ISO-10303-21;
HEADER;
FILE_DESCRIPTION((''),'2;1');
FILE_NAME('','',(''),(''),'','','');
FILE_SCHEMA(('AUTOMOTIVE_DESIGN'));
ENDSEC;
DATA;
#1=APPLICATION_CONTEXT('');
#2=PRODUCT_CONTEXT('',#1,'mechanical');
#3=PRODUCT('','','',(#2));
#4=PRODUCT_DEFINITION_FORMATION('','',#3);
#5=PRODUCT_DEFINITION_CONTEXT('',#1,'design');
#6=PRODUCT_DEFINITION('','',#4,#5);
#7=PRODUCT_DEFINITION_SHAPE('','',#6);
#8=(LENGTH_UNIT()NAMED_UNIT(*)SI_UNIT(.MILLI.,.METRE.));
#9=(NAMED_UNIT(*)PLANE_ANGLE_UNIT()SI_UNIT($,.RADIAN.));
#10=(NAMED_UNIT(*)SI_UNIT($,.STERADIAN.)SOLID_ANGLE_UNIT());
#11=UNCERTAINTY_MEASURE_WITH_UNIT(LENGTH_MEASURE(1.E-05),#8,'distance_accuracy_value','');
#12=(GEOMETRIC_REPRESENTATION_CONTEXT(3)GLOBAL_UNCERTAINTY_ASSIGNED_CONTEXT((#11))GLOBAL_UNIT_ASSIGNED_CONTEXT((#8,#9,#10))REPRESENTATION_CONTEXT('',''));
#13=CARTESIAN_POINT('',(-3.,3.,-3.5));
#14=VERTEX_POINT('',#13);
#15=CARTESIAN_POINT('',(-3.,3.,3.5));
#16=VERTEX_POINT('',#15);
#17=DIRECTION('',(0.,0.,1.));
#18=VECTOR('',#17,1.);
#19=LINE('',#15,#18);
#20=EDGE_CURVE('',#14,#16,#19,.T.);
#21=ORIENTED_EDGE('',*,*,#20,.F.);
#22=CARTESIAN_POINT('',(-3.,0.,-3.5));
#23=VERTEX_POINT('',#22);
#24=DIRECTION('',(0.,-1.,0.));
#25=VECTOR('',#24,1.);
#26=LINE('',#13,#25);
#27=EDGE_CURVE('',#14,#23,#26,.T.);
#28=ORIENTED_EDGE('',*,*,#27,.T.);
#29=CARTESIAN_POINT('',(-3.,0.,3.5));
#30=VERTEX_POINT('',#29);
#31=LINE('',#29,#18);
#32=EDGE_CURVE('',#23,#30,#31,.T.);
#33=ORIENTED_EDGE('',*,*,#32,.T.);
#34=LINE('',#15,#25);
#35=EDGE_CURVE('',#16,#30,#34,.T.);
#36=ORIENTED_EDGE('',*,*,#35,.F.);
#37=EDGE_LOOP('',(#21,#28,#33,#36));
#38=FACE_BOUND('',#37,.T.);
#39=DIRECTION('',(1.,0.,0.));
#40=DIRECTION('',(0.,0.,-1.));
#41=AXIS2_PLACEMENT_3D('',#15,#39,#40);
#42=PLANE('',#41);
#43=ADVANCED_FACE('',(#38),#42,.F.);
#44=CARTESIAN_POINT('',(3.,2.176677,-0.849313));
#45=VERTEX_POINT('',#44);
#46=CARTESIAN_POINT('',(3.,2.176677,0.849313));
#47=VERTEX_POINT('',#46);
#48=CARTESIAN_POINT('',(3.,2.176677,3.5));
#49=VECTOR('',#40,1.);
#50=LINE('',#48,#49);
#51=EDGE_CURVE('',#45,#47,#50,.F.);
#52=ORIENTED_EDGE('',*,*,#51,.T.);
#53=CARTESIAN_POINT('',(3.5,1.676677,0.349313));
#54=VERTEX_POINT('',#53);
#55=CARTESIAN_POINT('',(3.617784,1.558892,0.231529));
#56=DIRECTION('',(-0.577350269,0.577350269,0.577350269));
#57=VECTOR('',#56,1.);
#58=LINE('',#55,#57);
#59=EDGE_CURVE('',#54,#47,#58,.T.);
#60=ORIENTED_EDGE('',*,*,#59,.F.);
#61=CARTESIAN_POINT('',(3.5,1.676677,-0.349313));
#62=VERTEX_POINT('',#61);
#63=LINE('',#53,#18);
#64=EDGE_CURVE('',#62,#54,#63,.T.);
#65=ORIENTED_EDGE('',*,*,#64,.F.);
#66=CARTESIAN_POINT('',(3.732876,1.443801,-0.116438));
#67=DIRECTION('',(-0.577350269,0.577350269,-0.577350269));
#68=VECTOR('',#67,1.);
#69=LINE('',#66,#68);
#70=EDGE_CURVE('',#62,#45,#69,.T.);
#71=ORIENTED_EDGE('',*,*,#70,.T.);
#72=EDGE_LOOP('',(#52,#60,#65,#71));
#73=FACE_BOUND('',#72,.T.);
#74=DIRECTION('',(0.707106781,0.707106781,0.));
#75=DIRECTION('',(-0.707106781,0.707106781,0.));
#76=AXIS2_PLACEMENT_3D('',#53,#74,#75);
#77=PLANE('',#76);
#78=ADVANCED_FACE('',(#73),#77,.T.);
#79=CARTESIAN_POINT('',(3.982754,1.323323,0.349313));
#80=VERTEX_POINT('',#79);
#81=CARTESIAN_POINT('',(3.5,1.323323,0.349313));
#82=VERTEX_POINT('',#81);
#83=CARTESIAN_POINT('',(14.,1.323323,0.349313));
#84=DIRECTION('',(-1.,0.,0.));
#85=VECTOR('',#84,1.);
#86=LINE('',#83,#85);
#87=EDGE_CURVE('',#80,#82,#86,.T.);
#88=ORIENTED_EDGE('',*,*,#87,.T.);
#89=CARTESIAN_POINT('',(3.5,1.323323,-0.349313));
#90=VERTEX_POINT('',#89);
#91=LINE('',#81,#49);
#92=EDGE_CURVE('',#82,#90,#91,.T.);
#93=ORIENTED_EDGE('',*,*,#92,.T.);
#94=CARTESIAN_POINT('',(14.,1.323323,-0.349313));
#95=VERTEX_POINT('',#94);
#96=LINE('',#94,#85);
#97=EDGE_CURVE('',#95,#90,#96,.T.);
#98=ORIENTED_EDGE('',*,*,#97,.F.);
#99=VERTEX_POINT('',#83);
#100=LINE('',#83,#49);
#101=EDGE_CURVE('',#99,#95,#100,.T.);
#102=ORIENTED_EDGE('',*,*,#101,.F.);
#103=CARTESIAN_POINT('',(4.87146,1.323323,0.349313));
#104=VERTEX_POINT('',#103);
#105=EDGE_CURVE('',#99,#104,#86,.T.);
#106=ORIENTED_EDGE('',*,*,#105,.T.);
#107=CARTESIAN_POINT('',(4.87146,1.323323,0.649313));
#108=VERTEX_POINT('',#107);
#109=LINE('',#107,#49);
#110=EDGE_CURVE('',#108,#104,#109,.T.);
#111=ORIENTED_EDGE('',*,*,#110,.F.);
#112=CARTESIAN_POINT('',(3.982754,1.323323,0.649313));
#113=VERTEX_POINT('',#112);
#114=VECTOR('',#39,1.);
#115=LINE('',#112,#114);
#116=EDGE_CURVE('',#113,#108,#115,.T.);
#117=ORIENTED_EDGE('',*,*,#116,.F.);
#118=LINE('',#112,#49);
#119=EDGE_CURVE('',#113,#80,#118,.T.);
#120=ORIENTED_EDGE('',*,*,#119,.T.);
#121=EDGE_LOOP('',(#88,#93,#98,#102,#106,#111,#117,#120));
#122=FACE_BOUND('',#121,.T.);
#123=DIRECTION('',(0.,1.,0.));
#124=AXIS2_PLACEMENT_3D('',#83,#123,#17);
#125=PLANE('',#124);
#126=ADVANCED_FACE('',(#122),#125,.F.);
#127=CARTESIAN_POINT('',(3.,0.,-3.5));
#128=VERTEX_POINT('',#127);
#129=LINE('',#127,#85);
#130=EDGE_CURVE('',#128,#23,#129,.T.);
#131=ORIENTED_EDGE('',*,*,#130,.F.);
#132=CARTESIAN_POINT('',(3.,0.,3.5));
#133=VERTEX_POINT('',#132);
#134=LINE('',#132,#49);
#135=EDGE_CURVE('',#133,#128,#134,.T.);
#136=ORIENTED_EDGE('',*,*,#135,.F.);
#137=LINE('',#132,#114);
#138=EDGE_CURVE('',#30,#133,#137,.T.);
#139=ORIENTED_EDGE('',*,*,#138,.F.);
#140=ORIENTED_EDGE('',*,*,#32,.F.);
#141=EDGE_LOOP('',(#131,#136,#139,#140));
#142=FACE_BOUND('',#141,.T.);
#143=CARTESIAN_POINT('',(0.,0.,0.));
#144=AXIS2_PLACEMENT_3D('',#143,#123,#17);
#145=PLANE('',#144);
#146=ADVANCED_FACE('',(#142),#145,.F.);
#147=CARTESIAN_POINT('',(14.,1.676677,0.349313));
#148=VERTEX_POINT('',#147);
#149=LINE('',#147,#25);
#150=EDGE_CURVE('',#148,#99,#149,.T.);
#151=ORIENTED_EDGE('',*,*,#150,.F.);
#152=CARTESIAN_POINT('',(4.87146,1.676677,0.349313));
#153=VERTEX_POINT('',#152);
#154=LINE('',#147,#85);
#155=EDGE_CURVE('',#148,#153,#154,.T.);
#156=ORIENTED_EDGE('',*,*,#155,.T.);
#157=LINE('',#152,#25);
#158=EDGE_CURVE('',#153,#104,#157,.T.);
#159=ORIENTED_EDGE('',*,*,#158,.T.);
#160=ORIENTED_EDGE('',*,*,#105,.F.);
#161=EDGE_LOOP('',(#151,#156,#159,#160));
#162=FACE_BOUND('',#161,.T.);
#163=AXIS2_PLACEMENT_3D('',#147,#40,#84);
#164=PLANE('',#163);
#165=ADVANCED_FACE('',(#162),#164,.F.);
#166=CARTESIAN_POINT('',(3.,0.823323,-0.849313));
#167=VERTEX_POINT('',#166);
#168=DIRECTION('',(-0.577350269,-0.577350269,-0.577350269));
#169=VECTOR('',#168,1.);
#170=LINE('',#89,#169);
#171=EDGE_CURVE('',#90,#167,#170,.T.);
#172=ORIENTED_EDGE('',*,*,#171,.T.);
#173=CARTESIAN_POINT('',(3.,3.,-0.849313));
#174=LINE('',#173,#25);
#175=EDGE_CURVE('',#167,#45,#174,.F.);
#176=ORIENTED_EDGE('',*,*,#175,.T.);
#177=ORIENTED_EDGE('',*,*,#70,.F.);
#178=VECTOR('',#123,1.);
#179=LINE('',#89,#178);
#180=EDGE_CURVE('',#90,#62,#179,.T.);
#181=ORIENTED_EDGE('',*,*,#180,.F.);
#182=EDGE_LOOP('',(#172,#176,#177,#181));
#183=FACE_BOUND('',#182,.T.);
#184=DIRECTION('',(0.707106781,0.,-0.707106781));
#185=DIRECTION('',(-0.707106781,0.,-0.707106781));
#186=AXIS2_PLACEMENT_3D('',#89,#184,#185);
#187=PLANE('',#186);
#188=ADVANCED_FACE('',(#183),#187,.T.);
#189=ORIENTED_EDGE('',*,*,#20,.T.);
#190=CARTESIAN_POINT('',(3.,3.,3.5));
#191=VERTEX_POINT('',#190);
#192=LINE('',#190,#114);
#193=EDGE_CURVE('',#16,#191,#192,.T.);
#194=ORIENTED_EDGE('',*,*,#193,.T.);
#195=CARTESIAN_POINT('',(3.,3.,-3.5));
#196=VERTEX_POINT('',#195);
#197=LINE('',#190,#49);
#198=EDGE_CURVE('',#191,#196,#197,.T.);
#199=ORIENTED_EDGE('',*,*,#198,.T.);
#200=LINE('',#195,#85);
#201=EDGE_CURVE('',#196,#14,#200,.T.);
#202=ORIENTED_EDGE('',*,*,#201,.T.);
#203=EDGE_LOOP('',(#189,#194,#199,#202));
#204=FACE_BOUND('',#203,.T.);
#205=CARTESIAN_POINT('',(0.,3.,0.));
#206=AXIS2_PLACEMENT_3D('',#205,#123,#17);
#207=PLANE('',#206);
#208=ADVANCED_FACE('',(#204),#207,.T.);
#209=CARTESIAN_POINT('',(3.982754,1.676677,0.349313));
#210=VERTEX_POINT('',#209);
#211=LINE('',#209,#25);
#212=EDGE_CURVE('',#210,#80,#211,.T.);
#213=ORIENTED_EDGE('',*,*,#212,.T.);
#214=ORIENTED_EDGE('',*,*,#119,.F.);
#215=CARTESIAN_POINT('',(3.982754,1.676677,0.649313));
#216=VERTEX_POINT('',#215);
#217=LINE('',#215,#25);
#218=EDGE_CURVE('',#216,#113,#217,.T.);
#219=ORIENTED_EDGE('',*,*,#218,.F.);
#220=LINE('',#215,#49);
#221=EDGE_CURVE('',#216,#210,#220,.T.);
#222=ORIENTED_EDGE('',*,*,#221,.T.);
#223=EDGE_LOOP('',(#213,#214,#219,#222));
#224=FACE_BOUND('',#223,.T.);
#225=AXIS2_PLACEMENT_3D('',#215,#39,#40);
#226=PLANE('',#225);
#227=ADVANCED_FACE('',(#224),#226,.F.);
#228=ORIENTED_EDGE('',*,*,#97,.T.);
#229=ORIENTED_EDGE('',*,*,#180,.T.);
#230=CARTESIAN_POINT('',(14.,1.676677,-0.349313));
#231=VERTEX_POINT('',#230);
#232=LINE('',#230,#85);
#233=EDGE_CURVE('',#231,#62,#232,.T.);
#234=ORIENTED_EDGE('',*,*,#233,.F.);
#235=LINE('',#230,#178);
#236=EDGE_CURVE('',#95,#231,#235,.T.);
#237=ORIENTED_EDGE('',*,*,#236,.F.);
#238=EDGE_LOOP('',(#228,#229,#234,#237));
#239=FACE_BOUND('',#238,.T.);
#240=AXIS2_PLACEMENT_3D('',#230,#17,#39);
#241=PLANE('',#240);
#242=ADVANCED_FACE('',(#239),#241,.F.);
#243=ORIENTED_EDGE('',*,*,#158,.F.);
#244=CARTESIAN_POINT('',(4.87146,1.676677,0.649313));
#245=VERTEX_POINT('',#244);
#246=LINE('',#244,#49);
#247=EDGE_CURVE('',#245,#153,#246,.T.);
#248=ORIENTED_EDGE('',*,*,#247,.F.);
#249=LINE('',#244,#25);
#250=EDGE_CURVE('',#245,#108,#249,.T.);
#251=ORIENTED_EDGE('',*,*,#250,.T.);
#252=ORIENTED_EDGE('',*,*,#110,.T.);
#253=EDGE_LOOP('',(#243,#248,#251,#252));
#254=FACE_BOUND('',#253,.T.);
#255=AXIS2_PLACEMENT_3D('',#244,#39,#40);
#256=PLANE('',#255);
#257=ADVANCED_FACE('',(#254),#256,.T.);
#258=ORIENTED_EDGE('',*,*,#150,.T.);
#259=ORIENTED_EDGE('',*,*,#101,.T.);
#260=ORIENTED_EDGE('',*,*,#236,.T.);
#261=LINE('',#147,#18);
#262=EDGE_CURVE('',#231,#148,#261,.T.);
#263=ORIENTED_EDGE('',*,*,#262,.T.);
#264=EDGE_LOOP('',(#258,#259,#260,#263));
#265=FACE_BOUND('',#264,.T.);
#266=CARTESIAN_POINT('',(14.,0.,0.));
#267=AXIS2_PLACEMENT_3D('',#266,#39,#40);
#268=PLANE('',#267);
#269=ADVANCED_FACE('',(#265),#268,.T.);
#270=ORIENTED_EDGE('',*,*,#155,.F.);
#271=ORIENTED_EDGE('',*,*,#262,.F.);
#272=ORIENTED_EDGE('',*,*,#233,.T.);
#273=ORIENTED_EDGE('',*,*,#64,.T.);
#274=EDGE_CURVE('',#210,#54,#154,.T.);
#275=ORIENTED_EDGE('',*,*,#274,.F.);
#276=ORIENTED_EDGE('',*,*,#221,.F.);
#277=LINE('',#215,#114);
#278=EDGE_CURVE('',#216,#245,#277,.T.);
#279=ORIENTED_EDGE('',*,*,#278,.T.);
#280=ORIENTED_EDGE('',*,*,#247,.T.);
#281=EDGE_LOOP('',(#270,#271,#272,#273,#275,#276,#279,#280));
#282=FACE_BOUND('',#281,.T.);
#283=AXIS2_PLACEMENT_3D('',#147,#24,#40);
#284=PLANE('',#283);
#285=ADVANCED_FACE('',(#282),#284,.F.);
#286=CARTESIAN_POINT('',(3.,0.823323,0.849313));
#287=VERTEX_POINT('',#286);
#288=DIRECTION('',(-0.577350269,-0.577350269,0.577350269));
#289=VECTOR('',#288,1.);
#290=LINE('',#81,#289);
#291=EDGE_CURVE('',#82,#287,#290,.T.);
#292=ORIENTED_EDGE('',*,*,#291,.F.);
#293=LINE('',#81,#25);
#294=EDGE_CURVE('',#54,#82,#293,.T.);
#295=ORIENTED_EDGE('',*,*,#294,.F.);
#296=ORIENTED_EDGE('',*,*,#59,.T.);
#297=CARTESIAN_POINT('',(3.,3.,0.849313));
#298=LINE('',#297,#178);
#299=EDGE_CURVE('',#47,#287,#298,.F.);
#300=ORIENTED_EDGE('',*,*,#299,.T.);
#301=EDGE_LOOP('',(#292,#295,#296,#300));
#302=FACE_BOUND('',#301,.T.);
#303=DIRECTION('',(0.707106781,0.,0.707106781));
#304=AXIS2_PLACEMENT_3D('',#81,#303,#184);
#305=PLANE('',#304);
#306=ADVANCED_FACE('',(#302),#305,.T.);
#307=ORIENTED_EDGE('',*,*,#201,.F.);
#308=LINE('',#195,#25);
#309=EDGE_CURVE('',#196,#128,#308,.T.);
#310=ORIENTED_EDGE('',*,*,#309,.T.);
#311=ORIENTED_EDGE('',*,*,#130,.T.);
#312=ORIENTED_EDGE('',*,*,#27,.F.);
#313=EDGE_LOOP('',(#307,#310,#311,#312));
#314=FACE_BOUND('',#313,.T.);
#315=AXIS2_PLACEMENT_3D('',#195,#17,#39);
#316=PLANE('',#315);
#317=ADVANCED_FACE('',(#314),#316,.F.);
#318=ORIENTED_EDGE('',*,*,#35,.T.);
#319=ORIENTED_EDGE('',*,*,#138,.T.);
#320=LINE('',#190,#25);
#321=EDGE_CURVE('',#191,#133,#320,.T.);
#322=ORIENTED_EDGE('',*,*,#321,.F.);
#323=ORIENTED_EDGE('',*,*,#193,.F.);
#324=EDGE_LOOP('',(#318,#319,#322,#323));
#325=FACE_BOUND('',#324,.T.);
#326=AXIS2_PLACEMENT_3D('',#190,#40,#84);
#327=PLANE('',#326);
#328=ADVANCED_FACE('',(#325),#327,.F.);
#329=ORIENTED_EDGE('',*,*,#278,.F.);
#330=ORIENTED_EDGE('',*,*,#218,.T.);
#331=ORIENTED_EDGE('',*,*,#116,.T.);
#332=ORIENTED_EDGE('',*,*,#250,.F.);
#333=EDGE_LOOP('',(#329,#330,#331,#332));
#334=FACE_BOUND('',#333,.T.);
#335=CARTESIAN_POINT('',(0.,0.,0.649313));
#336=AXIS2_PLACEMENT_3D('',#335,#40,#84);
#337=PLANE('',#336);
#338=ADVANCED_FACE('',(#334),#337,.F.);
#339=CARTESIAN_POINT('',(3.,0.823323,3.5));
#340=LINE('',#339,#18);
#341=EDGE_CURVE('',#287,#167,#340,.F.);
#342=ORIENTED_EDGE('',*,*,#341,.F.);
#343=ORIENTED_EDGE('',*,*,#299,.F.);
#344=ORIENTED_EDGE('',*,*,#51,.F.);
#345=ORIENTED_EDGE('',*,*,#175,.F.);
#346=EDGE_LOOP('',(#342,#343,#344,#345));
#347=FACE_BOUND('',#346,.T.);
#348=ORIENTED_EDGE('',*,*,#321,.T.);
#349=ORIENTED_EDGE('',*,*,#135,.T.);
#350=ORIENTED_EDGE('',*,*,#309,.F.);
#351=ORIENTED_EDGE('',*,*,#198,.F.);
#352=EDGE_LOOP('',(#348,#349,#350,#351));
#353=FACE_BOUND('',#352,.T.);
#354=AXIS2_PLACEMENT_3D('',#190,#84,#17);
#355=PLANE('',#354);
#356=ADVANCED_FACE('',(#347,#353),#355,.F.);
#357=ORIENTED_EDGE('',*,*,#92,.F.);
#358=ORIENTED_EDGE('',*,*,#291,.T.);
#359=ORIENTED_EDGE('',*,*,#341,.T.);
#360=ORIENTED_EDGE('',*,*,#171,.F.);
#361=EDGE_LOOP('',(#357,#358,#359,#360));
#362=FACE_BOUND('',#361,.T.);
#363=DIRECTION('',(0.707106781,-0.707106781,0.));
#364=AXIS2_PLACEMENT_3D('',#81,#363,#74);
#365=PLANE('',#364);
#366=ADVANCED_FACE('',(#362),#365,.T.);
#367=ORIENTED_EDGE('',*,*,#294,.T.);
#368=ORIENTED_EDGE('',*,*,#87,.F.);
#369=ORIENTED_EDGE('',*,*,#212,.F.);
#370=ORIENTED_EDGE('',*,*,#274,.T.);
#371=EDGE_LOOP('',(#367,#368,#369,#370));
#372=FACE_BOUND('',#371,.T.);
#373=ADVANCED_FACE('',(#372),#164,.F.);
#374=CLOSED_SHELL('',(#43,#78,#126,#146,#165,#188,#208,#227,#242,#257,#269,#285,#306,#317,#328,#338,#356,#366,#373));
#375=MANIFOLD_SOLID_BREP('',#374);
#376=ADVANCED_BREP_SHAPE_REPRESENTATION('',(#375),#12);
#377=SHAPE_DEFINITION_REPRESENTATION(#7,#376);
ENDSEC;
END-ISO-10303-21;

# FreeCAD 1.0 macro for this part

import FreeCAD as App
import Part
import Sketcher
from FreeCAD import Vector


def faces_at(feature, points):
    """Names of the faces that lie closest to the given points."""
    faces = feature.Shape.Faces
    near = lambda p: min(range(len(faces)), key=lambda i: faces[i].distToShape(Part.Vertex(*p))[0])
    return sorted({f"Face{near(p) + 1}" for p in points})

doc = App.newDocument("Part")
body = doc.addObject("PartDesign::Body", "Body")

# Sketch on XZ plane
sketch1 = body.newObject("Sketcher::SketchObject", "Sketch")
sketch1.AttachmentSupport = (doc.getObject("XZ_Plane"), [""])
sketch1.MapMode = "FlatFace"
sketch1.addGeometry(Part.LineSegment(Vector(-3, -4, 0), Vector(-3, 4, 0)), False)
sketch1.addGeometry(Part.LineSegment(Vector(-3, 4, 0), Vector(3, 4, 0)), False)
sketch1.addGeometry(Part.LineSegment(Vector(3, 4, 0), Vector(3, -4, 0)), False)
sketch1.addGeometry(Part.LineSegment(Vector(3, -4, 0), Vector(-3, -4, 0)), False)
sketch1.addConstraint(Sketcher.Constraint("Coincident", 0, 2, 1, 1))
sketch1.addConstraint(Sketcher.Constraint("Coincident", 1, 2, 2, 1))
sketch1.addConstraint(Sketcher.Constraint("Coincident", 2, 2, 3, 1))
sketch1.addConstraint(Sketcher.Constraint("Coincident", 3, 2, 0, 1))
sketch1.addConstraint(Sketcher.Constraint("Vertical", 0))
sketch1.addConstraint(Sketcher.Constraint("Horizontal", 1))
sketch1.addConstraint(Sketcher.Constraint("Vertical", 2))
sketch1.addConstraint(Sketcher.Constraint("Horizontal", 3))
sketch1.addConstraint(Sketcher.Constraint("Symmetric", 0, 2, 2, 2, -1, 1))
sketch1.addConstraint(Sketcher.Constraint("DistanceX", 1, 1, 1, 2, 6.0))
sketch1.addConstraint(Sketcher.Constraint("DistanceY", 0, 1, 0, 2, 7.0))
pad1 = body.newObject("PartDesign::Pad", "Pad")
pad1.Profile = sketch1
pad1.Length = 3
pad1.Reversed = True

# Sketch on YZ plane
sketch2 = body.newObject("Sketcher::SketchObject", "Sketch001")
sketch2.AttachmentSupport = (doc.getObject("YZ_Plane"), [""])
sketch2.MapMode = "FlatFace"
sketch2.AttachmentOffset = App.Placement(Vector(0, 0, 3), App.Rotation())
sketch2.addGeometry(Part.LineSegment(Vector(1.68, 0.35, 0), Vector(1.32, 0.35, 0)), False)
sketch2.addGeometry(Part.LineSegment(Vector(1.32, 0.35, 0), Vector(1.32, -0.35, 0)), False)
sketch2.addGeometry(Part.LineSegment(Vector(1.32, -0.35, 0), Vector(1.68, -0.35, 0)), False)
sketch2.addGeometry(Part.LineSegment(Vector(1.68, -0.35, 0), Vector(1.68, 0.35, 0)), False)
sketch2.addConstraint(Sketcher.Constraint("Coincident", 0, 2, 1, 1))
sketch2.addConstraint(Sketcher.Constraint("Coincident", 1, 2, 2, 1))
sketch2.addConstraint(Sketcher.Constraint("Coincident", 2, 2, 3, 1))
sketch2.addConstraint(Sketcher.Constraint("Coincident", 3, 2, 0, 1))
sketch2.addConstraint(Sketcher.Constraint("Horizontal", 0))
sketch2.addConstraint(Sketcher.Constraint("Vertical", 1))
sketch2.addConstraint(Sketcher.Constraint("Horizontal", 2))
sketch2.addConstraint(Sketcher.Constraint("Vertical", 3))
sketch2.addConstraint(Sketcher.Constraint("DistanceX", 0, 2, 0, 1, 0.353353))
sketch2.addConstraint(Sketcher.Constraint("DistanceY", 1, 2, 1, 1, 0.698627))
sketch2.addConstraint(Sketcher.Constraint("DistanceX", -1, 1, 0, 2, 1.323323))
sketch2.addConstraint(Sketcher.Constraint("DistanceY", -1, 1, 0, 2, 0.349313))
pad2 = body.newObject("PartDesign::Pad", "Pad001")
pad2.Profile = sketch2
pad2.Length = 0.5
doc.recompute()

datumplane = body.newObject("PartDesign::Plane", "DatumPlane")
datumplane.AttachmentSupport = (doc.getObject("YZ_Plane"), [""])
datumplane.MapMode = "FlatFace"
datumplane.AttachmentOffset = App.Placement(Vector(0, 0, 3.5), App.Rotation())
draft = body.newObject("PartDesign::Draft", "Draft")
draft.Base = (pad2, faces_at(pad2, [
    (3.25, 1.323, 0),
    (3.25, 1.5, 0.349),
    (3.25, 1.677, 0),
    (3.25, 1.5, -0.349),
]))
draft.NeutralPlane = (datumplane, [""])
draft.Angle = 45
draft.Reversed = False

# Sketch on YZ plane
sketch3 = body.newObject("Sketcher::SketchObject", "Sketch002")
sketch3.AttachmentSupport = (doc.getObject("YZ_Plane"), [""])
sketch3.MapMode = "FlatFace"
sketch3.AttachmentOffset = App.Placement(Vector(0, 0, 3.5), App.Rotation())
sketch3.addGeometry(Part.LineSegment(Vector(1.68, 0.35, 0), Vector(1.32, 0.35, 0)), False)
sketch3.addGeometry(Part.LineSegment(Vector(1.32, 0.35, 0), Vector(1.32, -0.35, 0)), False)
sketch3.addGeometry(Part.LineSegment(Vector(1.32, -0.35, 0), Vector(1.68, -0.35, 0)), False)
sketch3.addGeometry(Part.LineSegment(Vector(1.68, -0.35, 0), Vector(1.68, 0.35, 0)), False)
sketch3.addConstraint(Sketcher.Constraint("Coincident", 0, 2, 1, 1))
sketch3.addConstraint(Sketcher.Constraint("Coincident", 1, 2, 2, 1))
sketch3.addConstraint(Sketcher.Constraint("Coincident", 2, 2, 3, 1))
sketch3.addConstraint(Sketcher.Constraint("Coincident", 3, 2, 0, 1))
sketch3.addConstraint(Sketcher.Constraint("Horizontal", 0))
sketch3.addConstraint(Sketcher.Constraint("Vertical", 1))
sketch3.addConstraint(Sketcher.Constraint("Horizontal", 2))
sketch3.addConstraint(Sketcher.Constraint("Vertical", 3))
sketch3.addConstraint(Sketcher.Constraint("DistanceX", 0, 2, 0, 1, 0.353353))
sketch3.addConstraint(Sketcher.Constraint("DistanceY", 1, 2, 1, 1, 0.698627))
sketch3.addConstraint(Sketcher.Constraint("DistanceX", -1, 1, 0, 2, 1.323323))
sketch3.addConstraint(Sketcher.Constraint("DistanceY", -1, 1, 0, 2, 0.349313))
pad3 = body.newObject("PartDesign::Pad", "Pad002")
pad3.Profile = sketch3
pad3.Length = 10.5

# Sketch on XY plane
sketch4 = body.newObject("Sketcher::SketchObject", "Sketch003")
sketch4.AttachmentSupport = (doc.getObject("XY_Plane"), [""])
sketch4.MapMode = "FlatFace"
sketch4.AttachmentOffset = App.Placement(Vector(0, 0, 0.349313), App.Rotation())
sketch4.addGeometry(Part.LineSegment(Vector(3.98, 1.68, 0), Vector(3.98, 1.32, 0)), False)
sketch4.addGeometry(Part.LineSegment(Vector(3.98, 1.32, 0), Vector(4.87, 1.32, 0)), False)
sketch4.addGeometry(Part.LineSegment(Vector(4.87, 1.32, 0), Vector(4.87, 1.68, 0)), False)
sketch4.addGeometry(Part.LineSegment(Vector(4.87, 1.68, 0), Vector(3.98, 1.68, 0)), False)
sketch4.addConstraint(Sketcher.Constraint("Coincident", 0, 2, 1, 1))
sketch4.addConstraint(Sketcher.Constraint("Coincident", 1, 2, 2, 1))
sketch4.addConstraint(Sketcher.Constraint("Coincident", 2, 2, 3, 1))
sketch4.addConstraint(Sketcher.Constraint("Coincident", 3, 2, 0, 1))
sketch4.addConstraint(Sketcher.Constraint("Vertical", 0))
sketch4.addConstraint(Sketcher.Constraint("Horizontal", 1))
sketch4.addConstraint(Sketcher.Constraint("Vertical", 2))
sketch4.addConstraint(Sketcher.Constraint("Horizontal", 3))
sketch4.addConstraint(Sketcher.Constraint("DistanceX", 1, 1, 1, 2, 0.888706))
sketch4.addConstraint(Sketcher.Constraint("DistanceY", 0, 2, 0, 1, 0.353353))
sketch4.addConstraint(Sketcher.Constraint("DistanceX", -1, 1, 1, 2, 4.87146))
sketch4.addConstraint(Sketcher.Constraint("DistanceY", -1, 1, 0, 2, 1.323323))
pad4 = body.newObject("PartDesign::Pad", "Pad003")
pad4.Profile = sketch4
pad4.Length = 0.3

doc.recompute()
